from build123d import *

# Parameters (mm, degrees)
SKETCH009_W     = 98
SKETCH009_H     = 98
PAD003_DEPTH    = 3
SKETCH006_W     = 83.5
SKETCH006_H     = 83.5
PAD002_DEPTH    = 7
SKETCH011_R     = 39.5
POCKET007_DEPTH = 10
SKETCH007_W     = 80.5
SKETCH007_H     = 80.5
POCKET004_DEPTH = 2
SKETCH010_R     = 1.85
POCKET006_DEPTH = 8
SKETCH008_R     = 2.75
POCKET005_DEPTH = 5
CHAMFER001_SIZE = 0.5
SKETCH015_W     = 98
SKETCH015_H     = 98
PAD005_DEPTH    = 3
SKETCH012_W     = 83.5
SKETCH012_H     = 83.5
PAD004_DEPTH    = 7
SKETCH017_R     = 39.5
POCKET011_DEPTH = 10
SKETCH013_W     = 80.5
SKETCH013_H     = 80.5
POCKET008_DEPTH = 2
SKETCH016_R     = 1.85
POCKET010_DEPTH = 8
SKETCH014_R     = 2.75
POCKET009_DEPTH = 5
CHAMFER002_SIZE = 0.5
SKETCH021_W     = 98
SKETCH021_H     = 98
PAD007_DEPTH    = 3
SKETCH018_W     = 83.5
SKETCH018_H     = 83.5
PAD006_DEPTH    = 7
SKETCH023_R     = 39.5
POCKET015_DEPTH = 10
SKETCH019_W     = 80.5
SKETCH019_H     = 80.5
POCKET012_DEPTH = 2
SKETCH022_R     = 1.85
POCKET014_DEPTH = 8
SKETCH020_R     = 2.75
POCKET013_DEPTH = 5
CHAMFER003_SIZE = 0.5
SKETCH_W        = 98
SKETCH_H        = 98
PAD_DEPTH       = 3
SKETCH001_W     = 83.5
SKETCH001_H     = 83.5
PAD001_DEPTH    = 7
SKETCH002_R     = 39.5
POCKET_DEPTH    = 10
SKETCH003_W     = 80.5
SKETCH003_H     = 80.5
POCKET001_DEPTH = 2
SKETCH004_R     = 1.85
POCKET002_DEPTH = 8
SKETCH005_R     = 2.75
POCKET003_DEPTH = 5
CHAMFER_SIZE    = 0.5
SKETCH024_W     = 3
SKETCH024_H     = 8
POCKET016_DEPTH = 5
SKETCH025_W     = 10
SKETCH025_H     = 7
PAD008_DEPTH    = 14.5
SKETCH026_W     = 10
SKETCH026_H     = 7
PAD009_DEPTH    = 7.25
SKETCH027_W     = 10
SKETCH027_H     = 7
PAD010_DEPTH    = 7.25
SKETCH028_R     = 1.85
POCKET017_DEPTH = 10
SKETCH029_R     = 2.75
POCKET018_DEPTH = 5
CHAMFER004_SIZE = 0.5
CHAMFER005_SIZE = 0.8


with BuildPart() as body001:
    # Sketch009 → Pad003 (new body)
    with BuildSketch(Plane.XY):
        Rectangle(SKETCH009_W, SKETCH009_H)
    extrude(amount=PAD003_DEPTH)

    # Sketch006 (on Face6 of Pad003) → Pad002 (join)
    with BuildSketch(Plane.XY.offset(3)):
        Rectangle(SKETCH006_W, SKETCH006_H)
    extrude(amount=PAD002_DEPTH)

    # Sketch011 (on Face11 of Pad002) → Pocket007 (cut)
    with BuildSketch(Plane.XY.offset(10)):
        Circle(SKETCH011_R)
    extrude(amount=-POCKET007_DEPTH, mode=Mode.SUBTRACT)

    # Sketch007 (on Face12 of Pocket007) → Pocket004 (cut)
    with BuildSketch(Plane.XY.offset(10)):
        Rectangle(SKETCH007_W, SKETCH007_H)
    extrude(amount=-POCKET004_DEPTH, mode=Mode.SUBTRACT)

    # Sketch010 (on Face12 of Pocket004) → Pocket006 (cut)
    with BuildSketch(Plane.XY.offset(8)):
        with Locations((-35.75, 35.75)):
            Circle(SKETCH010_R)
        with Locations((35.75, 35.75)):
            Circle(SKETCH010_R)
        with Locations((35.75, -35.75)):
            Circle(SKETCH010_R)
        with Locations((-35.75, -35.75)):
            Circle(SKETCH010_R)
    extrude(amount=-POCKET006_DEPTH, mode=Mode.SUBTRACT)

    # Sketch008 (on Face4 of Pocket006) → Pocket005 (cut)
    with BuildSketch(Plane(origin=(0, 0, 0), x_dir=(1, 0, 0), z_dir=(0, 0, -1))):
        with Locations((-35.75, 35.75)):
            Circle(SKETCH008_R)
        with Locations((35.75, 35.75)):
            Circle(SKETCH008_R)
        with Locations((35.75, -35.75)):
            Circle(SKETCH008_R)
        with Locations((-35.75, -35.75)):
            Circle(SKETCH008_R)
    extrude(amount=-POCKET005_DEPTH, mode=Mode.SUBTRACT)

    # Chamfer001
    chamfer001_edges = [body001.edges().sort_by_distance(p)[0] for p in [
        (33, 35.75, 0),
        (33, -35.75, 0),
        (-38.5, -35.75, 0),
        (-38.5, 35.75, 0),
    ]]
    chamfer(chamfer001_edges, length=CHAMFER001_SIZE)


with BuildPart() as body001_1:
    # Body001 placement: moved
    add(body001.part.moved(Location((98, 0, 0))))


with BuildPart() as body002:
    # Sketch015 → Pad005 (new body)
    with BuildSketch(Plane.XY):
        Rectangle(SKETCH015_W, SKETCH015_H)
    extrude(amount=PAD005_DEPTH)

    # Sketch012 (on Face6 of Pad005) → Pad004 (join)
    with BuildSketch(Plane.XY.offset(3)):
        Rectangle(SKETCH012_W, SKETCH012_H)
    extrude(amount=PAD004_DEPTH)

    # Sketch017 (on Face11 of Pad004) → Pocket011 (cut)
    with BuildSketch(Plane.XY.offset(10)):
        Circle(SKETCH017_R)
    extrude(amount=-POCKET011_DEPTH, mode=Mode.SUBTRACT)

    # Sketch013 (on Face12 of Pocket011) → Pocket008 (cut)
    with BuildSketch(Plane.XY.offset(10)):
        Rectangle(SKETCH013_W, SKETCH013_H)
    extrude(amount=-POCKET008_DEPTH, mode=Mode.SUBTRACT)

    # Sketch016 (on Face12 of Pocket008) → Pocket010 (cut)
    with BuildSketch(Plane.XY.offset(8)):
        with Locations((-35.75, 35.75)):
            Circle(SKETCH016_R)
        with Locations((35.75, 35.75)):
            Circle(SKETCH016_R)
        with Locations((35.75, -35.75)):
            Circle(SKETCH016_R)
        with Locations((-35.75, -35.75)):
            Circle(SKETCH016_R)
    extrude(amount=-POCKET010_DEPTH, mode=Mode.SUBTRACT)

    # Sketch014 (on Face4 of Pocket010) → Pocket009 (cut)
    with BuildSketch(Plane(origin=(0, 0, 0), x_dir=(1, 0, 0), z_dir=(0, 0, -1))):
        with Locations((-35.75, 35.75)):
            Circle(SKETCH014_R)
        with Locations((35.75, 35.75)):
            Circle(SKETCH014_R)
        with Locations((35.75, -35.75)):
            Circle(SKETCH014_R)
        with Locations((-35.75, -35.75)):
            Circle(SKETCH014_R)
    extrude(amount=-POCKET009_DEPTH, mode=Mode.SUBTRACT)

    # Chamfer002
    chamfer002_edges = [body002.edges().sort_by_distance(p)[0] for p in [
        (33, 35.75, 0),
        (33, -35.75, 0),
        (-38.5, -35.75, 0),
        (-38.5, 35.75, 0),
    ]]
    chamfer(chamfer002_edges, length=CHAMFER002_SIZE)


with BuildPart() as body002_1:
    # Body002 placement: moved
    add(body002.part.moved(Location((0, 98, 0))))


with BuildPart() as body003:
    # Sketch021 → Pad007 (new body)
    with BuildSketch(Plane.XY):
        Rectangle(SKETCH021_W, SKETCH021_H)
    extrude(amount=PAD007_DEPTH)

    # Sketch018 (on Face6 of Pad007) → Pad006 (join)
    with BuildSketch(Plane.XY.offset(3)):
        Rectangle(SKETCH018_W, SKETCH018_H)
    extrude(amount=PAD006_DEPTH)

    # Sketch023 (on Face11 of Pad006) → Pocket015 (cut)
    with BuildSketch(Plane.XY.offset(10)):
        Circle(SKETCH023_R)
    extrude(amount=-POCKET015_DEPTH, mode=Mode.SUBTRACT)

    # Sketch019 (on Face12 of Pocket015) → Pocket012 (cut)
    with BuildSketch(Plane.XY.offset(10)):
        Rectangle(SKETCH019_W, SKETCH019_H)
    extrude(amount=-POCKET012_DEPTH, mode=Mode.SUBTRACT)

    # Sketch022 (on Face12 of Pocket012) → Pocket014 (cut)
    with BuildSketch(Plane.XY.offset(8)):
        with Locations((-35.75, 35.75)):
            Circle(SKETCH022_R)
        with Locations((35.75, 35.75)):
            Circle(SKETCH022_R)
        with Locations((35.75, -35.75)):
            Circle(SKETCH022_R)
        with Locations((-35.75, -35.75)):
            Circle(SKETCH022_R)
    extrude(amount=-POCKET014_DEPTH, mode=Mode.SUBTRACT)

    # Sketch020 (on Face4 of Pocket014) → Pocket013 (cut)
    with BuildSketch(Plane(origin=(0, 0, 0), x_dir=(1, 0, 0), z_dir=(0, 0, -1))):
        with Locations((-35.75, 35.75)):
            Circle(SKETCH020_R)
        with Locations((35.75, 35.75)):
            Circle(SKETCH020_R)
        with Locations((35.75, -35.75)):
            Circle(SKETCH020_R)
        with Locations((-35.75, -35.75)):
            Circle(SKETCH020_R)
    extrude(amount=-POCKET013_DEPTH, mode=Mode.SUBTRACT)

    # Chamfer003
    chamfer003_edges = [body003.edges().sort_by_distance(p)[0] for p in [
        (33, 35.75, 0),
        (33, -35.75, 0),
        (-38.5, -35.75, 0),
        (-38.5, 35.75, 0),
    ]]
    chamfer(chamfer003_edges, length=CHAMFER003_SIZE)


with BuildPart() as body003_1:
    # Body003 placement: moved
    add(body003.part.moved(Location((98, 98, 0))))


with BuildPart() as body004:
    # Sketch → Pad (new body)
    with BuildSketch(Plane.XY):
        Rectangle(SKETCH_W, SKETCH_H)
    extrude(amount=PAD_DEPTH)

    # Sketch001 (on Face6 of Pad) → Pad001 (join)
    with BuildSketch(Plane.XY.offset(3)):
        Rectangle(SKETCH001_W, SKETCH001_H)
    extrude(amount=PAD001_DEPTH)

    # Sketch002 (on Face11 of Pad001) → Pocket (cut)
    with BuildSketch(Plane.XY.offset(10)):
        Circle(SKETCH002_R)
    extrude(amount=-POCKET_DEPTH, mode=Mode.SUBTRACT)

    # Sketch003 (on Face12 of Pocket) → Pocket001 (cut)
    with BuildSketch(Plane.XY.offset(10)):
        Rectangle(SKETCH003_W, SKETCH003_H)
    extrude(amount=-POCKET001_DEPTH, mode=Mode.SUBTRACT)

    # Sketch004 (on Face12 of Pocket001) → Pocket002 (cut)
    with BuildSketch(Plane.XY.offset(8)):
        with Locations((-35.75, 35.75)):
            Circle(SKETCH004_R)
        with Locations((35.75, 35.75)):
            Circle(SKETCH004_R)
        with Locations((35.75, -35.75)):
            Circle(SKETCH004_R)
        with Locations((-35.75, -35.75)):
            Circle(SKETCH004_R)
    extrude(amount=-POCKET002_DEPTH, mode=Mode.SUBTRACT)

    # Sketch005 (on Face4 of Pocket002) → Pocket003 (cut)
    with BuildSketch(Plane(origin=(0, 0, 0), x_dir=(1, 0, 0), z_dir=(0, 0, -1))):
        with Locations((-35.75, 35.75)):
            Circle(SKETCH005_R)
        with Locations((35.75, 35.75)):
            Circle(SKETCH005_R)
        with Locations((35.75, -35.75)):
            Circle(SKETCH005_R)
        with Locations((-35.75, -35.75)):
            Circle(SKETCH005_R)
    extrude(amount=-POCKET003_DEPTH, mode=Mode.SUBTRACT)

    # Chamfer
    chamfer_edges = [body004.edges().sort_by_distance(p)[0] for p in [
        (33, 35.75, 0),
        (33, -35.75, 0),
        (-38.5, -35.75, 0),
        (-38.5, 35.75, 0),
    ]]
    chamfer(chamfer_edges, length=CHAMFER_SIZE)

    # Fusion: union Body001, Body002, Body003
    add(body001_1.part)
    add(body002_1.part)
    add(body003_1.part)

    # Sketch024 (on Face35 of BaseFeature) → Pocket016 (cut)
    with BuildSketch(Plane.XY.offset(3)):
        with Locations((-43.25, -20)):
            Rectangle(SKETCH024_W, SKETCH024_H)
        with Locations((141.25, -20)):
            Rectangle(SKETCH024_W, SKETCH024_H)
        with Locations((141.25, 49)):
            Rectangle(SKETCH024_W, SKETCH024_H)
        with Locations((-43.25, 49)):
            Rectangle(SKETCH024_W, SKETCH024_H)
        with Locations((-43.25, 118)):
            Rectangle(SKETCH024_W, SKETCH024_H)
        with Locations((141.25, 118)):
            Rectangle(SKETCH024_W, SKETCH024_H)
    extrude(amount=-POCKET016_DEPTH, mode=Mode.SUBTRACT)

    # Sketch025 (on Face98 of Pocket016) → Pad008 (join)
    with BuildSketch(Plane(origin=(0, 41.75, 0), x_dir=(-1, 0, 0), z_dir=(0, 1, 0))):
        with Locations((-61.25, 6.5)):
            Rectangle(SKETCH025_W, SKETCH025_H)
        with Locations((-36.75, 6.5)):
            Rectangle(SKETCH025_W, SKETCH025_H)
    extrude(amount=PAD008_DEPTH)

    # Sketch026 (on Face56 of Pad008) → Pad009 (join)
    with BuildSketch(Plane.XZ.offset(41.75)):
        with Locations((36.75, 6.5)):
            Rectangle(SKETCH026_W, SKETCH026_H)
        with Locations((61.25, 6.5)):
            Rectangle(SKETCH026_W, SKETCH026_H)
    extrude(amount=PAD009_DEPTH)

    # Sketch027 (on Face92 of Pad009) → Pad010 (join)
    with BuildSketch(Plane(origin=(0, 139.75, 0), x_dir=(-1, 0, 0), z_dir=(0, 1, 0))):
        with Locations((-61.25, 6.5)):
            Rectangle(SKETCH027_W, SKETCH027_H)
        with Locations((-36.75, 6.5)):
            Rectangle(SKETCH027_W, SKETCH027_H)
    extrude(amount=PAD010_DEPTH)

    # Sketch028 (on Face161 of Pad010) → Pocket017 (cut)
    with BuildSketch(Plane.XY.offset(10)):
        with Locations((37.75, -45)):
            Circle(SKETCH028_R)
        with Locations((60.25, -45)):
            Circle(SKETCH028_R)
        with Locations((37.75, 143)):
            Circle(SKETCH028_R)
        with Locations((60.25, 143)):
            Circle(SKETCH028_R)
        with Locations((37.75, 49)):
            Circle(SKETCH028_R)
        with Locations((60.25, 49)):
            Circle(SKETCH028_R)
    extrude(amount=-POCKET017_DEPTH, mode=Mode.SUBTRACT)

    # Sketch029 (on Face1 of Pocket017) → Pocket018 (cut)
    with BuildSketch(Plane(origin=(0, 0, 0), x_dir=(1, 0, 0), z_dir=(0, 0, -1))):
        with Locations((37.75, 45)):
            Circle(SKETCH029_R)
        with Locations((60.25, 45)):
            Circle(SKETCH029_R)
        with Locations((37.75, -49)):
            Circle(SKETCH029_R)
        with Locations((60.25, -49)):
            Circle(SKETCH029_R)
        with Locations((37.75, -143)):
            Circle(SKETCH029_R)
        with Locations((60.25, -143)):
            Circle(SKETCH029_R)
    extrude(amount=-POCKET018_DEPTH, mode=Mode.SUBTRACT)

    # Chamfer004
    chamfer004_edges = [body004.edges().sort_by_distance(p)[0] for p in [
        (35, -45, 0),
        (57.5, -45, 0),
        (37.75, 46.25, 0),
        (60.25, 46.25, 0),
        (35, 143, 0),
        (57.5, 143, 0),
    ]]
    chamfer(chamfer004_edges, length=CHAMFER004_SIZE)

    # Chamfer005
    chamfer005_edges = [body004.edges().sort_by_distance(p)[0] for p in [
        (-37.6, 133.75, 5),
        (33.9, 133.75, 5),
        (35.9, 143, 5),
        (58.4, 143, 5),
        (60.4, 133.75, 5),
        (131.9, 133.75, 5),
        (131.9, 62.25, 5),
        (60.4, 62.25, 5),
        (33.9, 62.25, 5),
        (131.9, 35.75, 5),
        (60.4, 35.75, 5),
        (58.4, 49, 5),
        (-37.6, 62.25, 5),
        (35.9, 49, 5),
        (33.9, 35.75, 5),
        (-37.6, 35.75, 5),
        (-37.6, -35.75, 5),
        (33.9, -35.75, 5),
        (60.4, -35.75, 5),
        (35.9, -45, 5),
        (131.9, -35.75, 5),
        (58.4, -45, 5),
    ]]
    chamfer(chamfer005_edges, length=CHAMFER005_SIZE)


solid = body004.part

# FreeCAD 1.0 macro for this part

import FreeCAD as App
import Part
import Sketcher

V = App.Vector


def edges_at(feature, points):
    """Names of the edges that pass closest to the given points."""
    edges = feature.Shape.Edges
    near = lambda p: min(range(len(edges)), key=lambda i: edges[i].distToShape(Part.Vertex(*p))[0])
    return sorted({f"Edge{near(p) + 1}" for p in points})


def add_polygon(sketch, points):
    """Adds a closed chain of lines whose ends are joined by coincident constraints."""
    first, n = sketch.GeometryCount, len(points)
    for a, b in zip(points, points[1:] + points[:1]):
        sketch.addGeometry(Part.LineSegment(App.Vector(*a, 0), App.Vector(*b, 0)), False)
    for i in range(n):
        sketch.addConstraint(Sketcher.Constraint("Coincident", first + i, 2, first + (i + 1) % n, 1))

doc = App.newDocument("Part")
body = doc.addObject("PartDesign::Body", "Body")

# Sketch on XY plane
sketch1 = body.newObject("Sketcher::SketchObject", "Sketch")
sketch1.AttachmentSupport = (doc.getObject("XY_Plane"), [""])
sketch1.MapMode = "FlatFace"
add_polygon(sketch1, [(-49, 49), (-49, -49), (49, -49), (49, 49)])  # lines 0-3
sketch1.addConstraint(Sketcher.Constraint("Vertical", 0))
sketch1.addConstraint(Sketcher.Constraint("Horizontal", 1))
sketch1.addConstraint(Sketcher.Constraint("Vertical", 2))
sketch1.addConstraint(Sketcher.Constraint("Horizontal", 3))
sketch1.addConstraint(Sketcher.Constraint("Symmetric", 0, 2, 2, 2, -1, 1))
sketch1.addConstraint(Sketcher.Constraint("Equal", 3, 0))
sketch1.addConstraint(Sketcher.Constraint("DistanceX", 1, 1, 1, 2, 98.0))
pad1 = body.newObject("PartDesign::Pad", "Pad")
pad1.Profile = sketch1
pad1.Length = 3

# Sketch on XY plane
sketch2 = body.newObject("Sketcher::SketchObject", "Sketch001")
sketch2.AttachmentSupport = (doc.getObject("XY_Plane"), [""])
sketch2.MapMode = "FlatFace"
sketch2.AttachmentOffset = App.Placement(V(0, 0, 3), App.Rotation())
add_polygon(sketch2, [(-42, 42), (-42, -42), (42, -42), (42, 42)])  # lines 0-3
sketch2.addConstraint(Sketcher.Constraint("Vertical", 0))
sketch2.addConstraint(Sketcher.Constraint("Horizontal", 1))
sketch2.addConstraint(Sketcher.Constraint("Vertical", 2))
sketch2.addConstraint(Sketcher.Constraint("Horizontal", 3))
sketch2.addConstraint(Sketcher.Constraint("Symmetric", 0, 2, 2, 2, -1, 1))
sketch2.addConstraint(Sketcher.Constraint("Equal", 3, 0))
sketch2.addConstraint(Sketcher.Constraint("DistanceX", 1, 1, 1, 2, 83.5))
pad2 = body.newObject("PartDesign::Pad", "Pad001")
pad2.Profile = sketch2
pad2.Length = 7

# Sketch on XY plane
sketch3 = body.newObject("Sketcher::SketchObject", "Sketch002")
sketch3.AttachmentSupport = (doc.getObject("XY_Plane"), [""])
sketch3.MapMode = "FlatFace"
sketch3.AttachmentOffset = App.Placement(V(0, 0, 10), App.Rotation())
sketch3.addGeometry(Part.Circle(V(0, 0, 0), V(0, 0, 1), 40), False)
sketch3.addConstraint(Sketcher.Constraint("Coincident", 0, 3, -1, 1))
sketch3.addConstraint(Sketcher.Constraint("Diameter", 0, 79.0))
pocket1 = body.newObject("PartDesign::Pocket", "Pocket")
pocket1.Profile = sketch3
pocket1.Length = 10

# Sketch on XY plane
sketch4 = body.newObject("Sketcher::SketchObject", "Sketch003")
sketch4.AttachmentSupport = (doc.getObject("XY_Plane"), [""])
sketch4.MapMode = "FlatFace"
sketch4.AttachmentOffset = App.Placement(V(0, 0, 10), App.Rotation())
add_polygon(sketch4, [(-40, 40), (-40, -40), (40, -40), (40, 40)])  # lines 0-3
sketch4.addConstraint(Sketcher.Constraint("Vertical", 0))
sketch4.addConstraint(Sketcher.Constraint("Horizontal", 1))
sketch4.addConstraint(Sketcher.Constraint("Vertical", 2))
sketch4.addConstraint(Sketcher.Constraint("Horizontal", 3))
sketch4.addConstraint(Sketcher.Constraint("Symmetric", 0, 2, 2, 2, -1, 1))
sketch4.addConstraint(Sketcher.Constraint("Equal", 3, 0))
sketch4.addConstraint(Sketcher.Constraint("DistanceX", 1, 1, 1, 2, 80.5))
pocket2 = body.newObject("PartDesign::Pocket", "Pocket001")
pocket2.Profile = sketch4
pocket2.Length = 2

# Sketch on XY plane
sketch5 = body.newObject("Sketcher::SketchObject", "Sketch004")
sketch5.AttachmentSupport = (doc.getObject("XY_Plane"), [""])
sketch5.MapMode = "FlatFace"
sketch5.AttachmentOffset = App.Placement(V(0, 0, 8), App.Rotation())
sketch5.addGeometry(Part.Circle(V(-35.8, 35.8, 0), V(0, 0, 1), 1.9), False)
sketch5.addGeometry(Part.Circle(V(35.8, 35.8, 0), V(0, 0, 1), 1.9), False)
sketch5.addGeometry(Part.Circle(V(35.8, -35.8, 0), V(0, 0, 1), 1.9), False)
sketch5.addGeometry(Part.Circle(V(-35.8, -35.8, 0), V(0, 0, 1), 1.9), False)
sketch5.addConstraint(Sketcher.Constraint("Equal", 0, 1))
sketch5.addConstraint(Sketcher.Constraint("Equal", 1, 2))
sketch5.addConstraint(Sketcher.Constraint("Equal", 2, 3))
sketch5.addConstraint(Sketcher.Constraint("Symmetric", 0, 3, 2, 3, -1, 1))
sketch5.addConstraint(Sketcher.Constraint("Symmetric", 1, 3, 3, 3, -1, 1))
sketch5.addConstraint(Sketcher.Constraint("Symmetric", 0, 3, 1, 3, -2))
sketch5.addConstraint(Sketcher.Constraint("Diameter", 0, 3.7))
sketch5.addConstraint(Sketcher.Constraint("DistanceX", 0, 3, 1, 3, 71.5))
sketch5.addConstraint(Sketcher.Constraint("DistanceY", 2, 3, 1, 3, 71.5))
pocket3 = body.newObject("PartDesign::Pocket", "Pocket002")
pocket3.Profile = sketch5
pocket3.Length = 8

# Sketch on XY plane
sketch6 = body.newObject("Sketcher::SketchObject", "Sketch005")
sketch6.AttachmentSupport = (doc.getObject("XY_Plane"), [""])
sketch6.MapMode = "FlatFace"
sketch6.addGeometry(Part.Circle(V(-35.8, -35.8, 0), V(0, 0, 1), 2.8), False)
sketch6.addGeometry(Part.Circle(V(35.8, -35.8, 0), V(0, 0, 1), 2.8), False)
sketch6.addGeometry(Part.Circle(V(35.8, 35.8, 0), V(0, 0, 1), 2.8), False)
sketch6.addGeometry(Part.Circle(V(-35.8, 35.8, 0), V(0, 0, 1), 2.8), False)
sketch6.addConstraint(Sketcher.Constraint("Equal", 0, 1))
sketch6.addConstraint(Sketcher.Constraint("Equal", 1, 2))
sketch6.addConstraint(Sketcher.Constraint("Equal", 2, 3))
sketch6.addConstraint(Sketcher.Constraint("Symmetric", 0, 3, 2, 3, -1, 1))
sketch6.addConstraint(Sketcher.Constraint("Symmetric", 1, 3, 3, 3, -1, 1))
sketch6.addConstraint(Sketcher.Constraint("Symmetric", 0, 3, 1, 3, -2))
sketch6.addConstraint(Sketcher.Constraint("Diameter", 0, 5.5))
sketch6.addConstraint(Sketcher.Constraint("DistanceX", 0, 3, 1, 3, 71.5))
sketch6.addConstraint(Sketcher.Constraint("DistanceY", 1, 3, 2, 3, 71.5))
pocket4 = body.newObject("PartDesign::Pocket", "Pocket003")
pocket4.Profile = sketch6
pocket4.Length = 5
pocket4.Reversed = True
doc.recompute()

chamfer = body.newObject("PartDesign::Chamfer", "Chamfer")
chamfer.Base = (pocket4, edges_at(pocket4, [
    (33, 35.75, 0),
    (33, -35.75, 0),
    (-38.5, -35.75, 0),
    (-38.5, 35.75, 0),
]))
chamfer.Size = 0.5
body2 = doc.addObject("PartDesign::Body", "Body001")
doc.recompute()

body.Placement = App.Placement(V(98, 0, 0), App.Rotation(V(0, 0, 1), 0))
boolean = body2.newObject("PartDesign::Boolean", "Boolean")
boolean.Type = "Fuse"
boolean.addObjects([body])
body3 = doc.addObject("PartDesign::Body", "Body002")

# Sketch on XY plane
sketch7 = body3.newObject("Sketcher::SketchObject", "Sketch006")
sketch7.AttachmentSupport = (doc.getObject("XY_Plane002"), [""])
sketch7.MapMode = "FlatFace"
add_polygon(sketch7, [(-49, 49), (-49, -49), (49, -49), (49, 49)])  # lines 0-3
sketch7.addConstraint(Sketcher.Constraint("Vertical", 0))
sketch7.addConstraint(Sketcher.Constraint("Horizontal", 1))
sketch7.addConstraint(Sketcher.Constraint("Vertical", 2))
sketch7.addConstraint(Sketcher.Constraint("Horizontal", 3))
sketch7.addConstraint(Sketcher.Constraint("Symmetric", 0, 2, 2, 2, -1, 1))
sketch7.addConstraint(Sketcher.Constraint("Equal", 3, 0))
sketch7.addConstraint(Sketcher.Constraint("DistanceX", 1, 1, 1, 2, 98.0))
pad3 = body3.newObject("PartDesign::Pad", "Pad002")
pad3.Profile = sketch7
pad3.Length = 3

# Sketch on XY plane
sketch8 = body3.newObject("Sketcher::SketchObject", "Sketch007")
sketch8.AttachmentSupport = (doc.getObject("XY_Plane002"), [""])
sketch8.MapMode = "FlatFace"
sketch8.AttachmentOffset = App.Placement(V(0, 0, 3), App.Rotation())
add_polygon(sketch8, [(-42, 42), (-42, -42), (42, -42), (42, 42)])  # lines 0-3
sketch8.addConstraint(Sketcher.Constraint("Vertical", 0))
sketch8.addConstraint(Sketcher.Constraint("Horizontal", 1))
sketch8.addConstraint(Sketcher.Constraint("Vertical", 2))
sketch8.addConstraint(Sketcher.Constraint("Horizontal", 3))
sketch8.addConstraint(Sketcher.Constraint("Symmetric", 0, 2, 2, 2, -1, 1))
sketch8.addConstraint(Sketcher.Constraint("Equal", 3, 0))
sketch8.addConstraint(Sketcher.Constraint("DistanceX", 1, 1, 1, 2, 83.5))
pad4 = body3.newObject("PartDesign::Pad", "Pad003")
pad4.Profile = sketch8
pad4.Length = 7

# Sketch on XY plane
sketch9 = body3.newObject("Sketcher::SketchObject", "Sketch008")
sketch9.AttachmentSupport = (doc.getObject("XY_Plane002"), [""])
sketch9.MapMode = "FlatFace"
sketch9.AttachmentOffset = App.Placement(V(0, 0, 10), App.Rotation())
sketch9.addGeometry(Part.Circle(V(0, 0, 0), V(0, 0, 1), 40), False)
sketch9.addConstraint(Sketcher.Constraint("Coincident", 0, 3, -1, 1))
sketch9.addConstraint(Sketcher.Constraint("Diameter", 0, 79.0))
pocket5 = body3.newObject("PartDesign::Pocket", "Pocket004")
pocket5.Profile = sketch9
pocket5.Length = 10

# Sketch on XY plane
sketch10 = body3.newObject("Sketcher::SketchObject", "Sketch009")
sketch10.AttachmentSupport = (doc.getObject("XY_Plane002"), [""])
sketch10.MapMode = "FlatFace"
sketch10.AttachmentOffset = App.Placement(V(0, 0, 10), App.Rotation())
add_polygon(sketch10, [(-40, 40), (-40, -40), (40, -40), (40, 40)])  # lines 0-3
sketch10.addConstraint(Sketcher.Constraint("Vertical", 0))
sketch10.addConstraint(Sketcher.Constraint("Horizontal", 1))
sketch10.addConstraint(Sketcher.Constraint("Vertical", 2))
sketch10.addConstraint(Sketcher.Constraint("Horizontal", 3))
sketch10.addConstraint(Sketcher.Constraint("Symmetric", 0, 2, 2, 2, -1, 1))
sketch10.addConstraint(Sketcher.Constraint("Equal", 3, 0))
sketch10.addConstraint(Sketcher.Constraint("DistanceX", 1, 1, 1, 2, 80.5))
pocket6 = body3.newObject("PartDesign::Pocket", "Pocket005")
pocket6.Profile = sketch10
pocket6.Length = 2

# Sketch on XY plane
sketch11 = body3.newObject("Sketcher::SketchObject", "Sketch010")
sketch11.AttachmentSupport = (doc.getObject("XY_Plane002"), [""])
sketch11.MapMode = "FlatFace"
sketch11.AttachmentOffset = App.Placement(V(0, 0, 8), App.Rotation())
sketch11.addGeometry(Part.Circle(V(-35.8, 35.8, 0), V(0, 0, 1), 1.9), False)
sketch11.addGeometry(Part.Circle(V(35.8, 35.8, 0), V(0, 0, 1), 1.9), False)
sketch11.addGeometry(Part.Circle(V(35.8, -35.8, 0), V(0, 0, 1), 1.9), False)
sketch11.addGeometry(Part.Circle(V(-35.8, -35.8, 0), V(0, 0, 1), 1.9), False)
sketch11.addConstraint(Sketcher.Constraint("Equal", 0, 1))
sketch11.addConstraint(Sketcher.Constraint("Equal", 1, 2))
sketch11.addConstraint(Sketcher.Constraint("Equal", 2, 3))
sketch11.addConstraint(Sketcher.Constraint("Symmetric", 0, 3, 2, 3, -1, 1))
sketch11.addConstraint(Sketcher.Constraint("Symmetric", 1, 3, 3, 3, -1, 1))
sketch11.addConstraint(Sketcher.Constraint("Symmetric", 0, 3, 1, 3, -2))
sketch11.addConstraint(Sketcher.Constraint("Diameter", 0, 3.7))
sketch11.addConstraint(Sketcher.Constraint("DistanceX", 0, 3, 1, 3, 71.5))
sketch11.addConstraint(Sketcher.Constraint("DistanceY", 2, 3, 1, 3, 71.5))
pocket7 = body3.newObject("PartDesign::Pocket", "Pocket006")
pocket7.Profile = sketch11
pocket7.Length = 8

# Sketch on XY plane
sketch12 = body3.newObject("Sketcher::SketchObject", "Sketch011")
sketch12.AttachmentSupport = (doc.getObject("XY_Plane002"), [""])
sketch12.MapMode = "FlatFace"
sketch12.addGeometry(Part.Circle(V(-35.8, -35.8, 0), V(0, 0, 1), 2.8), False)
sketch12.addGeometry(Part.Circle(V(35.8, -35.8, 0), V(0, 0, 1), 2.8), False)
sketch12.addGeometry(Part.Circle(V(35.8, 35.8, 0), V(0, 0, 1), 2.8), False)
sketch12.addGeometry(Part.Circle(V(-35.8, 35.8, 0), V(0, 0, 1), 2.8), False)
sketch12.addConstraint(Sketcher.Constraint("Equal", 0, 1))
sketch12.addConstraint(Sketcher.Constraint("Equal", 1, 2))
sketch12.addConstraint(Sketcher.Constraint("Equal", 2, 3))
sketch12.addConstraint(Sketcher.Constraint("Symmetric", 0, 3, 2, 3, -1, 1))
sketch12.addConstraint(Sketcher.Constraint("Symmetric", 1, 3, 3, 3, -1, 1))
sketch12.addConstraint(Sketcher.Constraint("Symmetric", 0, 3, 1, 3, -2))
sketch12.addConstraint(Sketcher.Constraint("Diameter", 0, 5.5))
sketch12.addConstraint(Sketcher.Constraint("DistanceX", 0, 3, 1, 3, 71.5))
sketch12.addConstraint(Sketcher.Constraint("DistanceY", 1, 3, 2, 3, 71.5))
pocket8 = body3.newObject("PartDesign::Pocket", "Pocket007")
pocket8.Profile = sketch12
pocket8.Length = 5
pocket8.Reversed = True
doc.recompute()

chamfer2 = body3.newObject("PartDesign::Chamfer", "Chamfer001")
chamfer2.Base = (pocket8, edges_at(pocket8, [
    (33, 35.75, 0),
    (33, -35.75, 0),
    (-38.5, -35.75, 0),
    (-38.5, 35.75, 0),
]))
chamfer2.Size = 0.5
body4 = doc.addObject("PartDesign::Body", "Body003")
doc.recompute()

body3.Placement = App.Placement(V(0, 98, 0), App.Rotation(V(0, 0, 1), 0))
boolean2 = body4.newObject("PartDesign::Boolean", "Boolean001")
boolean2.Type = "Fuse"
boolean2.addObjects([body3])
body5 = doc.addObject("PartDesign::Body", "Body004")

# Sketch on XY plane
sketch13 = body5.newObject("Sketcher::SketchObject", "Sketch012")
sketch13.AttachmentSupport = (doc.getObject("XY_Plane004"), [""])
sketch13.MapMode = "FlatFace"
add_polygon(sketch13, [(-49, 49), (-49, -49), (49, -49), (49, 49)])  # lines 0-3
sketch13.addConstraint(Sketcher.Constraint("Vertical", 0))
sketch13.addConstraint(Sketcher.Constraint("Horizontal", 1))
sketch13.addConstraint(Sketcher.Constraint("Vertical", 2))
sketch13.addConstraint(Sketcher.Constraint("Horizontal", 3))
sketch13.addConstraint(Sketcher.Constraint("Symmetric", 0, 2, 2, 2, -1, 1))
sketch13.addConstraint(Sketcher.Constraint("Equal", 3, 0))
sketch13.addConstraint(Sketcher.Constraint("DistanceX", 1, 1, 1, 2, 98.0))
pad5 = body5.newObject("PartDesign::Pad", "Pad004")
pad5.Profile = sketch13
pad5.Length = 3

# Sketch on XY plane
sketch14 = body5.newObject("Sketcher::SketchObject", "Sketch013")
sketch14.AttachmentSupport = (doc.getObject("XY_Plane004"), [""])
sketch14.MapMode = "FlatFace"
sketch14.AttachmentOffset = App.Placement(V(0, 0, 3), App.Rotation())
add_polygon(sketch14, [(-42, 42), (-42, -42), (42, -42), (42, 42)])  # lines 0-3
sketch14.addConstraint(Sketcher.Constraint("Vertical", 0))
sketch14.addConstraint(Sketcher.Constraint("Horizontal", 1))
sketch14.addConstraint(Sketcher.Constraint("Vertical", 2))
sketch14.addConstraint(Sketcher.Constraint("Horizontal", 3))
sketch14.addConstraint(Sketcher.Constraint("Symmetric", 0, 2, 2, 2, -1, 1))
sketch14.addConstraint(Sketcher.Constraint("Equal", 3, 0))
sketch14.addConstraint(Sketcher.Constraint("DistanceX", 1, 1, 1, 2, 83.5))
pad6 = body5.newObject("PartDesign::Pad", "Pad005")
pad6.Profile = sketch14
pad6.Length = 7

# Sketch on XY plane
sketch15 = body5.newObject("Sketcher::SketchObject", "Sketch014")
sketch15.AttachmentSupport = (doc.getObject("XY_Plane004"), [""])
sketch15.MapMode = "FlatFace"
sketch15.AttachmentOffset = App.Placement(V(0, 0, 10), App.Rotation())
sketch15.addGeometry(Part.Circle(V(0, 0, 0), V(0, 0, 1), 40), False)
sketch15.addConstraint(Sketcher.Constraint("Coincident", 0, 3, -1, 1))
sketch15.addConstraint(Sketcher.Constraint("Diameter", 0, 79.0))
pocket9 = body5.newObject("PartDesign::Pocket", "Pocket008")
pocket9.Profile = sketch15
pocket9.Length = 10

# Sketch on XY plane
sketch16 = body5.newObject("Sketcher::SketchObject", "Sketch015")
sketch16.AttachmentSupport = (doc.getObject("XY_Plane004"), [""])
sketch16.MapMode = "FlatFace"
sketch16.AttachmentOffset = App.Placement(V(0, 0, 10), App.Rotation())
add_polygon(sketch16, [(-40, 40), (-40, -40), (40, -40), (40, 40)])  # lines 0-3
sketch16.addConstraint(Sketcher.Constraint("Vertical", 0))
sketch16.addConstraint(Sketcher.Constraint("Horizontal", 1))
sketch16.addConstraint(Sketcher.Constraint("Vertical", 2))
sketch16.addConstraint(Sketcher.Constraint("Horizontal", 3))
sketch16.addConstraint(Sketcher.Constraint("Symmetric", 0, 2, 2, 2, -1, 1))
sketch16.addConstraint(Sketcher.Constraint("Equal", 3, 0))
sketch16.addConstraint(Sketcher.Constraint("DistanceX", 1, 1, 1, 2, 80.5))
pocket10 = body5.newObject("PartDesign::Pocket", "Pocket009")
pocket10.Profile = sketch16
pocket10.Length = 2

# Sketch on XY plane
sketch17 = body5.newObject("Sketcher::SketchObject", "Sketch016")
sketch17.AttachmentSupport = (doc.getObject("XY_Plane004"), [""])
sketch17.MapMode = "FlatFace"
sketch17.AttachmentOffset = App.Placement(V(0, 0, 8), App.Rotation())
sketch17.addGeometry(Part.Circle(V(-35.8, 35.8, 0), V(0, 0, 1), 1.9), False)
sketch17.addGeometry(Part.Circle(V(35.8, 35.8, 0), V(0, 0, 1), 1.9), False)
sketch17.addGeometry(Part.Circle(V(35.8, -35.8, 0), V(0, 0, 1), 1.9), False)
sketch17.addGeometry(Part.Circle(V(-35.8, -35.8, 0), V(0, 0, 1), 1.9), False)
sketch17.addConstraint(Sketcher.Constraint("Equal", 0, 1))
sketch17.addConstraint(Sketcher.Constraint("Equal", 1, 2))
sketch17.addConstraint(Sketcher.Constraint("Equal", 2, 3))
sketch17.addConstraint(Sketcher.Constraint("Symmetric", 0, 3, 2, 3, -1, 1))
sketch17.addConstraint(Sketcher.Constraint("Symmetric", 1, 3, 3, 3, -1, 1))
sketch17.addConstraint(Sketcher.Constraint("Symmetric", 0, 3, 1, 3, -2))
sketch17.addConstraint(Sketcher.Constraint("Diameter", 0, 3.7))
sketch17.addConstraint(Sketcher.Constraint("DistanceX", 0, 3, 1, 3, 71.5))
sketch17.addConstraint(Sketcher.Constraint("DistanceY", 2, 3, 1, 3, 71.5))
pocket11 = body5.newObject("PartDesign::Pocket", "Pocket010")
pocket11.Profile = sketch17
pocket11.Length = 8

# Sketch on XY plane
sketch18 = body5.newObject("Sketcher::SketchObject", "Sketch017")
sketch18.AttachmentSupport = (doc.getObject("XY_Plane004"), [""])
sketch18.MapMode = "FlatFace"
sketch18.addGeometry(Part.Circle(V(-35.8, -35.8, 0), V(0, 0, 1), 2.8), False)
sketch18.addGeometry(Part.Circle(V(35.8, -35.8, 0), V(0, 0, 1), 2.8), False)
sketch18.addGeometry(Part.Circle(V(35.8, 35.8, 0), V(0, 0, 1), 2.8), False)
sketch18.addGeometry(Part.Circle(V(-35.8, 35.8, 0), V(0, 0, 1), 2.8), False)
sketch18.addConstraint(Sketcher.Constraint("Equal", 0, 1))
sketch18.addConstraint(Sketcher.Constraint("Equal", 1, 2))
sketch18.addConstraint(Sketcher.Constraint("Equal", 2, 3))
sketch18.addConstraint(Sketcher.Constraint("Symmetric", 0, 3, 2, 3, -1, 1))
sketch18.addConstraint(Sketcher.Constraint("Symmetric", 1, 3, 3, 3, -1, 1))
sketch18.addConstraint(Sketcher.Constraint("Symmetric", 0, 3, 1, 3, -2))
sketch18.addConstraint(Sketcher.Constraint("Diameter", 0, 5.5))
sketch18.addConstraint(Sketcher.Constraint("DistanceX", 0, 3, 1, 3, 71.5))
sketch18.addConstraint(Sketcher.Constraint("DistanceY", 1, 3, 2, 3, 71.5))
pocket12 = body5.newObject("PartDesign::Pocket", "Pocket011")
pocket12.Profile = sketch18
pocket12.Length = 5
pocket12.Reversed = True
doc.recompute()

chamfer3 = body5.newObject("PartDesign::Chamfer", "Chamfer002")
chamfer3.Base = (pocket12, edges_at(pocket12, [
    (33, 35.75, 0),
    (33, -35.75, 0),
    (-38.5, -35.75, 0),
    (-38.5, 35.75, 0),
]))
chamfer3.Size = 0.5
body6 = doc.addObject("PartDesign::Body", "Body005")
doc.recompute()

body5.Placement = App.Placement(V(98, 98, 0), App.Rotation(V(0, 0, 1), 0))
boolean3 = body6.newObject("PartDesign::Boolean", "Boolean002")
boolean3.Type = "Fuse"
boolean3.addObjects([body5])
body7 = doc.addObject("PartDesign::Body", "Body006")

# Sketch on XY plane
sketch19 = body7.newObject("Sketcher::SketchObject", "Sketch018")
sketch19.AttachmentSupport = (doc.getObject("XY_Plane006"), [""])
sketch19.MapMode = "FlatFace"
add_polygon(sketch19, [(-49, 49), (-49, -49), (49, -49), (49, 49)])  # lines 0-3
sketch19.addConstraint(Sketcher.Constraint("Vertical", 0))
sketch19.addConstraint(Sketcher.Constraint("Horizontal", 1))
sketch19.addConstraint(Sketcher.Constraint("Vertical", 2))
sketch19.addConstraint(Sketcher.Constraint("Horizontal", 3))
sketch19.addConstraint(Sketcher.Constraint("Symmetric", 0, 2, 2, 2, -1, 1))
sketch19.addConstraint(Sketcher.Constraint("Equal", 3, 0))
sketch19.addConstraint(Sketcher.Constraint("DistanceX", 1, 1, 1, 2, 98.0))
pad7 = body7.newObject("PartDesign::Pad", "Pad006")
pad7.Profile = sketch19
pad7.Length = 3

# Sketch on XY plane
sketch20 = body7.newObject("Sketcher::SketchObject", "Sketch019")
sketch20.AttachmentSupport = (doc.getObject("XY_Plane006"), [""])
sketch20.MapMode = "FlatFace"
sketch20.AttachmentOffset = App.Placement(V(0, 0, 3), App.Rotation())
add_polygon(sketch20, [(-42, 42), (-42, -42), (42, -42), (42, 42)])  # lines 0-3
sketch20.addConstraint(Sketcher.Constraint("Vertical", 0))
sketch20.addConstraint(Sketcher.Constraint("Horizontal", 1))
sketch20.addConstraint(Sketcher.Constraint("Vertical", 2))
sketch20.addConstraint(Sketcher.Constraint("Horizontal", 3))
sketch20.addConstraint(Sketcher.Constraint("Symmetric", 0, 2, 2, 2, -1, 1))
sketch20.addConstraint(Sketcher.Constraint("Equal", 3, 0))
sketch20.addConstraint(Sketcher.Constraint("DistanceX", 1, 1, 1, 2, 83.5))
pad8 = body7.newObject("PartDesign::Pad", "Pad007")
pad8.Profile = sketch20
pad8.Length = 7

# Sketch on XY plane
sketch21 = body7.newObject("Sketcher::SketchObject", "Sketch020")
sketch21.AttachmentSupport = (doc.getObject("XY_Plane006"), [""])
sketch21.MapMode = "FlatFace"
sketch21.AttachmentOffset = App.Placement(V(0, 0, 10), App.Rotation())
sketch21.addGeometry(Part.Circle(V(0, 0, 0), V(0, 0, 1), 40), False)
sketch21.addConstraint(Sketcher.Constraint("Coincident", 0, 3, -1, 1))
sketch21.addConstraint(Sketcher.Constraint("Diameter", 0, 79.0))
pocket13 = body7.newObject("PartDesign::Pocket", "Pocket012")
pocket13.Profile = sketch21
pocket13.Length = 10

# Sketch on XY plane
sketch22 = body7.newObject("Sketcher::SketchObject", "Sketch021")
sketch22.AttachmentSupport = (doc.getObject("XY_Plane006"), [""])
sketch22.MapMode = "FlatFace"
sketch22.AttachmentOffset = App.Placement(V(0, 0, 10), App.Rotation())
add_polygon(sketch22, [(-40, 40), (-40, -40), (40, -40), (40, 40)])  # lines 0-3
sketch22.addConstraint(Sketcher.Constraint("Vertical", 0))
sketch22.addConstraint(Sketcher.Constraint("Horizontal", 1))
sketch22.addConstraint(Sketcher.Constraint("Vertical", 2))
sketch22.addConstraint(Sketcher.Constraint("Horizontal", 3))
sketch22.addConstraint(Sketcher.Constraint("Symmetric", 0, 2, 2, 2, -1, 1))
sketch22.addConstraint(Sketcher.Constraint("Equal", 3, 0))
sketch22.addConstraint(Sketcher.Constraint("DistanceX", 1, 1, 1, 2, 80.5))
pocket14 = body7.newObject("PartDesign::Pocket", "Pocket013")
pocket14.Profile = sketch22
pocket14.Length = 2

# Sketch on XY plane
sketch23 = body7.newObject("Sketcher::SketchObject", "Sketch022")
sketch23.AttachmentSupport = (doc.getObject("XY_Plane006"), [""])
sketch23.MapMode = "FlatFace"
sketch23.AttachmentOffset = App.Placement(V(0, 0, 8), App.Rotation())
sketch23.addGeometry(Part.Circle(V(-35.8, 35.8, 0), V(0, 0, 1), 1.9), False)
sketch23.addGeometry(Part.Circle(V(35.8, 35.8, 0), V(0, 0, 1), 1.9), False)
sketch23.addGeometry(Part.Circle(V(35.8, -35.8, 0), V(0, 0, 1), 1.9), False)
sketch23.addGeometry(Part.Circle(V(-35.8, -35.8, 0), V(0, 0, 1), 1.9), False)
sketch23.addConstraint(Sketcher.Constraint("Equal", 0, 1))
sketch23.addConstraint(Sketcher.Constraint("Equal", 1, 2))
sketch23.addConstraint(Sketcher.Constraint("Equal", 2, 3))
sketch23.addConstraint(Sketcher.Constraint("Symmetric", 0, 3, 2, 3, -1, 1))
sketch23.addConstraint(Sketcher.Constraint("Symmetric", 1, 3, 3, 3, -1, 1))
sketch23.addConstraint(Sketcher.Constraint("Symmetric", 0, 3, 1, 3, -2))
sketch23.addConstraint(Sketcher.Constraint("Diameter", 0, 3.7))
sketch23.addConstraint(Sketcher.Constraint("DistanceX", 0, 3, 1, 3, 71.5))
sketch23.addConstraint(Sketcher.Constraint("DistanceY", 2, 3, 1, 3, 71.5))
pocket15 = body7.newObject("PartDesign::Pocket", "Pocket014")
pocket15.Profile = sketch23
pocket15.Length = 8

# Sketch on XY plane
sketch24 = body7.newObject("Sketcher::SketchObject", "Sketch023")
sketch24.AttachmentSupport = (doc.getObject("XY_Plane006"), [""])
sketch24.MapMode = "FlatFace"
sketch24.addGeometry(Part.Circle(V(-35.8, -35.8, 0), V(0, 0, 1), 2.8), False)
sketch24.addGeometry(Part.Circle(V(35.8, -35.8, 0), V(0, 0, 1), 2.8), False)
sketch24.addGeometry(Part.Circle(V(35.8, 35.8, 0), V(0, 0, 1), 2.8), False)
sketch24.addGeometry(Part.Circle(V(-35.8, 35.8, 0), V(0, 0, 1), 2.8), False)
sketch24.addConstraint(Sketcher.Constraint("Equal", 0, 1))
sketch24.addConstraint(Sketcher.Constraint("Equal", 1, 2))
sketch24.addConstraint(Sketcher.Constraint("Equal", 2, 3))
sketch24.addConstraint(Sketcher.Constraint("Symmetric", 0, 3, 2, 3, -1, 1))
sketch24.addConstraint(Sketcher.Constraint("Symmetric", 1, 3, 3, 3, -1, 1))
sketch24.addConstraint(Sketcher.Constraint("Symmetric", 0, 3, 1, 3, -2))
sketch24.addConstraint(Sketcher.Constraint("Diameter", 0, 5.5))
sketch24.addConstraint(Sketcher.Constraint("DistanceX", 0, 3, 1, 3, 71.5))
sketch24.addConstraint(Sketcher.Constraint("DistanceY", 1, 3, 2, 3, 71.5))
pocket16 = body7.newObject("PartDesign::Pocket", "Pocket015")
pocket16.Profile = sketch24
pocket16.Length = 5
pocket16.Reversed = True
doc.recompute()

chamfer4 = body7.newObject("PartDesign::Chamfer", "Chamfer003")
chamfer4.Base = (pocket16, edges_at(pocket16, [
    (33, 35.75, 0),
    (33, -35.75, 0),
    (-38.5, -35.75, 0),
    (-38.5, 35.75, 0),
]))
chamfer4.Size = 0.5
doc.recompute()

boolean4 = body7.newObject("PartDesign::Boolean", "Boolean003")
boolean4.Type = "Fuse"
boolean4.addObjects([body2])
doc.recompute()

boolean5 = body7.newObject("PartDesign::Boolean", "Boolean004")
boolean5.Type = "Fuse"
boolean5.addObjects([body4])
doc.recompute()

boolean6 = body7.newObject("PartDesign::Boolean", "Boolean005")
boolean6.Type = "Fuse"
boolean6.addObjects([body6])

# Sketch on XY plane
sketch25 = body7.newObject("Sketcher::SketchObject", "Sketch024")
sketch25.AttachmentSupport = (doc.getObject("XY_Plane006"), [""])
sketch25.MapMode = "FlatFace"
sketch25.AttachmentOffset = App.Placement(V(0, 0, 3), App.Rotation())
add_polygon(sketch25, [(-44.8, -16), (-44.8, -24), (-41.8, -24), (-41.8, -16)])  # lines 0-3
add_polygon(sketch25, [(139.8, -16), (139.8, -24), (142.8, -24), (142.8, -16)])  # lines 4-7
add_polygon(sketch25, [(139.8, 53), (139.8, 45), (142.8, 45), (142.8, 53)])  # lines 8-11
add_polygon(sketch25, [(-44.8, 53), (-44.8, 45), (-41.8, 45), (-41.8, 53)])  # lines 12-15
add_polygon(sketch25, [(-44.8, 122), (-44.8, 114), (-41.8, 114), (-41.8, 122)])  # lines 16-19
add_polygon(sketch25, [(139.8, 122), (139.8, 114), (142.8, 114), (142.8, 122)])  # lines 20-23
sketch25.addConstraint(Sketcher.Constraint("Vertical", 0))
sketch25.addConstraint(Sketcher.Constraint("Horizontal", 1))
sketch25.addConstraint(Sketcher.Constraint("Vertical", 2))
sketch25.addConstraint(Sketcher.Constraint("Horizontal", 3))
sketch25.addConstraint(Sketcher.Constraint("Vertical", 4))
sketch25.addConstraint(Sketcher.Constraint("Horizontal", 5))
sketch25.addConstraint(Sketcher.Constraint("Vertical", 6))
sketch25.addConstraint(Sketcher.Constraint("Horizontal", 7))
sketch25.addConstraint(Sketcher.Constraint("Vertical", 8))
sketch25.addConstraint(Sketcher.Constraint("Horizontal", 9))
sketch25.addConstraint(Sketcher.Constraint("Vertical", 10))
sketch25.addConstraint(Sketcher.Constraint("Horizontal", 11))
sketch25.addConstraint(Sketcher.Constraint("Vertical", 12))
sketch25.addConstraint(Sketcher.Constraint("Horizontal", 13))
sketch25.addConstraint(Sketcher.Constraint("Vertical", 14))
sketch25.addConstraint(Sketcher.Constraint("Horizontal", 15))
sketch25.addConstraint(Sketcher.Constraint("Vertical", 16))
sketch25.addConstraint(Sketcher.Constraint("Horizontal", 17))
sketch25.addConstraint(Sketcher.Constraint("Vertical", 18))
sketch25.addConstraint(Sketcher.Constraint("Horizontal", 19))
sketch25.addConstraint(Sketcher.Constraint("Vertical", 20))
sketch25.addConstraint(Sketcher.Constraint("Horizontal", 21))
sketch25.addConstraint(Sketcher.Constraint("Vertical", 22))
sketch25.addConstraint(Sketcher.Constraint("Horizontal", 23))
sketch25.addConstraint(Sketcher.Constraint("Horizontal", 1, 2, 4, 2))
sketch25.addConstraint(Sketcher.Constraint("Horizontal", 3, 2, 6, 2))
sketch25.addConstraint(Sketcher.Constraint("Horizontal", 9, 2, 12, 2))
sketch25.addConstraint(Sketcher.Constraint("Horizontal", 11, 2, 14, 2))
sketch25.addConstraint(Sketcher.Constraint("Horizontal", 17, 2, 20, 2))
sketch25.addConstraint(Sketcher.Constraint("Horizontal", 19, 2, 22, 2))
sketch25.addConstraint(Sketcher.Constraint("Vertical", 7, 2, 8, 2))
sketch25.addConstraint(Sketcher.Constraint("Vertical", 6, 2, 9, 2))
sketch25.addConstraint(Sketcher.Constraint("Vertical", 3, 2, 12, 2))
sketch25.addConstraint(Sketcher.Constraint("Vertical", 2, 2, 13, 2))
sketch25.addConstraint(Sketcher.Constraint("Vertical", 15, 2, 16, 2))
sketch25.addConstraint(Sketcher.Constraint("Vertical", 14, 2, 17, 2))
sketch25.addConstraint(Sketcher.Constraint("Vertical", 11, 2, 20, 2))
sketch25.addConstraint(Sketcher.Constraint("Vertical", 10, 2, 21, 2))
sketch25.addConstraint(Sketcher.Constraint("Equal", 3, 5))
sketch25.addConstraint(Sketcher.Constraint("Equal", 6, 8))
sketch25.addConstraint(Sketcher.Constraint("Equal", 14, 16))
sketch25.addConstraint(Sketcher.Constraint("DistanceX", 1, 1, 1, 2, 3.0))
sketch25.addConstraint(Sketcher.Constraint("DistanceY", 0, 2, 0, 1, 8.0))
sketch25.addConstraint(Sketcher.Constraint("DistanceY", 0, 2, -1, 1, 24.0))
sketch25.addConstraint(Sketcher.Constraint("DistanceY", -1, 1, 8, 2, 45.0))
sketch25.addConstraint(Sketcher.Constraint("DistanceY", -1, 1, 16, 2, 114.0))
sketch25.addConstraint(Sketcher.Constraint("DistanceX", 1, 2, 4, 2, 181.5))
sketch25.addConstraint(Sketcher.Constraint("DistanceX", 0, 2, -1, 1, 44.75))
pocket17 = body7.newObject("PartDesign::Pocket", "Pocket016")
pocket17.Profile = sketch25
pocket17.Length = 5

# Sketch on XZ plane
sketch26 = body7.newObject("Sketcher::SketchObject", "Sketch025")
sketch26.AttachmentSupport = (doc.getObject("XZ_Plane006"), [""])
sketch26.MapMode = "FlatFace"
sketch26.AttachmentOffset = App.Placement(V(0, 0, -41.75), App.Rotation())
add_polygon(sketch26, [(66, 10), (66, 3), (56, 3), (56, 10)])  # lines 0-3
add_polygon(sketch26, [(42, 10), (42, 3), (32, 3), (32, 10)])  # lines 4-7
sketch26.addConstraint(Sketcher.Constraint("Vertical", 0))
sketch26.addConstraint(Sketcher.Constraint("Horizontal", 1))
sketch26.addConstraint(Sketcher.Constraint("Vertical", 2))
sketch26.addConstraint(Sketcher.Constraint("Horizontal", 3))
sketch26.addConstraint(Sketcher.Constraint("Vertical", 4))
sketch26.addConstraint(Sketcher.Constraint("Horizontal", 5))
sketch26.addConstraint(Sketcher.Constraint("Vertical", 6))
sketch26.addConstraint(Sketcher.Constraint("Horizontal", 7))
sketch26.addConstraint(Sketcher.Constraint("Horizontal", 1, 2, 4, 2))
sketch26.addConstraint(Sketcher.Constraint("Horizontal", 3, 2, 6, 2))
sketch26.addConstraint(Sketcher.Constraint("Equal", 3, 5))
sketch26.addConstraint(Sketcher.Constraint("DistanceX", 1, 2, 1, 1, 10.0))
sketch26.addConstraint(Sketcher.Constraint("DistanceY", 0, 2, 0, 1, 7.0))
sketch26.addConstraint(Sketcher.Constraint("DistanceY", -1, 1, 0, 2, 3.0))
sketch26.addConstraint(Sketcher.Constraint("DistanceX", 4, 2, 1, 2, 14.5))
sketch26.addConstraint(Sketcher.Constraint("DistanceX", -1, 1, 0, 2, 66.25))
pad9 = body7.newObject("PartDesign::Pad", "Pad008")
pad9.Profile = sketch26
pad9.Length = 14.5
pad9.Reversed = True

# Sketch on XZ plane
sketch27 = body7.newObject("Sketcher::SketchObject", "Sketch026")
sketch27.AttachmentSupport = (doc.getObject("XZ_Plane006"), [""])
sketch27.MapMode = "FlatFace"
sketch27.AttachmentOffset = App.Placement(V(0, 0, 41.75), App.Rotation())
add_polygon(sketch27, [(32, 10), (32, 3), (42, 3), (42, 10)])  # lines 0-3
add_polygon(sketch27, [(56, 10), (56, 3), (66, 3), (66, 10)])  # lines 4-7
sketch27.addConstraint(Sketcher.Constraint("Vertical", 0))
sketch27.addConstraint(Sketcher.Constraint("Horizontal", 1))
sketch27.addConstraint(Sketcher.Constraint("Vertical", 2))
sketch27.addConstraint(Sketcher.Constraint("Horizontal", 3))
sketch27.addConstraint(Sketcher.Constraint("Vertical", 4))
sketch27.addConstraint(Sketcher.Constraint("Horizontal", 5))
sketch27.addConstraint(Sketcher.Constraint("Vertical", 6))
sketch27.addConstraint(Sketcher.Constraint("Horizontal", 7))
sketch27.addConstraint(Sketcher.Constraint("Horizontal", 1, 2, 4, 2))
sketch27.addConstraint(Sketcher.Constraint("Horizontal", 3, 2, 6, 2))
sketch27.addConstraint(Sketcher.Constraint("Equal", 3, 5))
sketch27.addConstraint(Sketcher.Constraint("DistanceX", 1, 1, 1, 2, 10.0))
sketch27.addConstraint(Sketcher.Constraint("DistanceY", 0, 2, 0, 1, 7.0))
sketch27.addConstraint(Sketcher.Constraint("DistanceY", -1, 1, 0, 2, 3.0))
sketch27.addConstraint(Sketcher.Constraint("DistanceX", 1, 2, 4, 2, 14.5))
sketch27.addConstraint(Sketcher.Constraint("DistanceX", -1, 1, 0, 2, 31.75))
pad10 = body7.newObject("PartDesign::Pad", "Pad009")
pad10.Profile = sketch27
pad10.Length = 7.25

# Sketch on XZ plane
sketch28 = body7.newObject("Sketcher::SketchObject", "Sketch027")
sketch28.AttachmentSupport = (doc.getObject("XZ_Plane006"), [""])
sketch28.MapMode = "FlatFace"
sketch28.AttachmentOffset = App.Placement(V(0, 0, -139.75), App.Rotation())
add_polygon(sketch28, [(66, 10), (66, 3), (56, 3), (56, 10)])  # lines 0-3
add_polygon(sketch28, [(42, 10), (42, 3), (32, 3), (32, 10)])  # lines 4-7
sketch28.addConstraint(Sketcher.Constraint("Vertical", 0))
sketch28.addConstraint(Sketcher.Constraint("Horizontal", 1))
sketch28.addConstraint(Sketcher.Constraint("Vertical", 2))
sketch28.addConstraint(Sketcher.Constraint("Horizontal", 3))
sketch28.addConstraint(Sketcher.Constraint("Vertical", 4))
sketch28.addConstraint(Sketcher.Constraint("Horizontal", 5))
sketch28.addConstraint(Sketcher.Constraint("Vertical", 6))
sketch28.addConstraint(Sketcher.Constraint("Horizontal", 7))
sketch28.addConstraint(Sketcher.Constraint("Horizontal", 1, 2, 4, 2))
sketch28.addConstraint(Sketcher.Constraint("Horizontal", 3, 2, 6, 2))
sketch28.addConstraint(Sketcher.Constraint("Equal", 3, 5))
sketch28.addConstraint(Sketcher.Constraint("DistanceX", 1, 2, 1, 1, 10.0))
sketch28.addConstraint(Sketcher.Constraint("DistanceY", 0, 2, 0, 1, 7.0))
sketch28.addConstraint(Sketcher.Constraint("DistanceY", -1, 1, 0, 2, 3.0))
sketch28.addConstraint(Sketcher.Constraint("DistanceX", 4, 2, 1, 2, 14.5))
sketch28.addConstraint(Sketcher.Constraint("DistanceX", -1, 1, 0, 2, 66.25))
pad11 = body7.newObject("PartDesign::Pad", "Pad010")
pad11.Profile = sketch28
pad11.Length = 7.25
pad11.Reversed = True

# Sketch on XY plane
sketch29 = body7.newObject("Sketcher::SketchObject", "Sketch028")
sketch29.AttachmentSupport = (doc.getObject("XY_Plane006"), [""])
sketch29.MapMode = "FlatFace"
sketch29.AttachmentOffset = App.Placement(V(0, 0, 10), App.Rotation())
sketch29.addGeometry(Part.Circle(V(37.8, -45, 0), V(0, 0, 1), 1.9), False)
sketch29.addGeometry(Part.Circle(V(60.2, -45, 0), V(0, 0, 1), 1.9), False)
sketch29.addGeometry(Part.Circle(V(37.8, 143, 0), V(0, 0, 1), 1.9), False)
sketch29.addGeometry(Part.Circle(V(60.2, 143, 0), V(0, 0, 1), 1.9), False)
sketch29.addGeometry(Part.Circle(V(37.8, 49, 0), V(0, 0, 1), 1.9), False)
sketch29.addGeometry(Part.Circle(V(60.2, 49, 0), V(0, 0, 1), 1.9), False)
sketch29.addConstraint(Sketcher.Constraint("Equal", 0, 1))
sketch29.addConstraint(Sketcher.Constraint("Equal", 1, 2))
sketch29.addConstraint(Sketcher.Constraint("Equal", 2, 3))
sketch29.addConstraint(Sketcher.Constraint("Equal", 3, 4))
sketch29.addConstraint(Sketcher.Constraint("Equal", 4, 5))
sketch29.addConstraint(Sketcher.Constraint("Horizontal", 0, 3, 1, 3))
sketch29.addConstraint(Sketcher.Constraint("Horizontal", 2, 3, 3, 3))
sketch29.addConstraint(Sketcher.Constraint("Horizontal", 4, 3, 5, 3))
sketch29.addConstraint(Sketcher.Constraint("Vertical", 0, 3, 2, 3))
sketch29.addConstraint(Sketcher.Constraint("Vertical", 1, 3, 3, 3))
sketch29.addConstraint(Sketcher.Constraint("Vertical", 2, 3, 4, 3))
sketch29.addConstraint(Sketcher.Constraint("Vertical", 3, 3, 5, 3))
sketch29.addConstraint(Sketcher.Constraint("Diameter", 0, 3.7))
sketch29.addConstraint(Sketcher.Constraint("DistanceY", 0, 3, -1, 1, 45.0))
sketch29.addConstraint(Sketcher.Constraint("DistanceY", -1, 1, 2, 3, 143.0))
sketch29.addConstraint(Sketcher.Constraint("DistanceY", -1, 1, 4, 3, 49.0))
sketch29.addConstraint(Sketcher.Constraint("DistanceX", 0, 3, 1, 3, 22.5))
sketch29.addConstraint(Sketcher.Constraint("DistanceX", -1, 1, 0, 3, 37.75))
pocket18 = body7.newObject("PartDesign::Pocket", "Pocket017")
pocket18.Profile = sketch29
pocket18.Length = 10

# Sketch on XY plane
sketch30 = body7.newObject("Sketcher::SketchObject", "Sketch029")
sketch30.AttachmentSupport = (doc.getObject("XY_Plane006"), [""])
sketch30.MapMode = "FlatFace"
sketch30.addGeometry(Part.Circle(V(37.8, -45, 0), V(0, 0, 1), 2.8), False)
sketch30.addGeometry(Part.Circle(V(60.2, -45, 0), V(0, 0, 1), 2.8), False)
sketch30.addGeometry(Part.Circle(V(37.8, 49, 0), V(0, 0, 1), 2.8), False)
sketch30.addGeometry(Part.Circle(V(60.2, 49, 0), V(0, 0, 1), 2.8), False)
sketch30.addGeometry(Part.Circle(V(37.8, 143, 0), V(0, 0, 1), 2.8), False)
sketch30.addGeometry(Part.Circle(V(60.2, 143, 0), V(0, 0, 1), 2.8), False)
sketch30.addConstraint(Sketcher.Constraint("Equal", 0, 1))
sketch30.addConstraint(Sketcher.Constraint("Equal", 1, 2))
sketch30.addConstraint(Sketcher.Constraint("Equal", 2, 3))
sketch30.addConstraint(Sketcher.Constraint("Equal", 3, 4))
sketch30.addConstraint(Sketcher.Constraint("Equal", 4, 5))
sketch30.addConstraint(Sketcher.Constraint("Horizontal", 0, 3, 1, 3))
sketch30.addConstraint(Sketcher.Constraint("Horizontal", 2, 3, 3, 3))
sketch30.addConstraint(Sketcher.Constraint("Horizontal", 4, 3, 5, 3))
sketch30.addConstraint(Sketcher.Constraint("Vertical", 0, 3, 2, 3))
sketch30.addConstraint(Sketcher.Constraint("Vertical", 1, 3, 3, 3))
sketch30.addConstraint(Sketcher.Constraint("Vertical", 2, 3, 4, 3))
sketch30.addConstraint(Sketcher.Constraint("Vertical", 3, 3, 5, 3))
sketch30.addConstraint(Sketcher.Constraint("Diameter", 0, 5.5))
sketch30.addConstraint(Sketcher.Constraint("DistanceY", 0, 3, -1, 1, 45.0))
sketch30.addConstraint(Sketcher.Constraint("DistanceY", -1, 1, 2, 3, 49.0))
sketch30.addConstraint(Sketcher.Constraint("DistanceY", -1, 1, 4, 3, 143.0))
sketch30.addConstraint(Sketcher.Constraint("DistanceX", 0, 3, 1, 3, 22.5))
sketch30.addConstraint(Sketcher.Constraint("DistanceX", -1, 1, 0, 3, 37.75))
pocket19 = body7.newObject("PartDesign::Pocket", "Pocket018")
pocket19.Profile = sketch30
pocket19.Length = 5
pocket19.Reversed = True
doc.recompute()

chamfer5 = body7.newObject("PartDesign::Chamfer", "Chamfer004")
chamfer5.Base = (pocket19, edges_at(pocket19, [
    (35, -45, 0),
    (57.5, -45, 0),
    (35, 49, 0),
    (57.5, 49, 0),
    (35, 143, 0),
    (57.5, 143, 0),
]))
chamfer5.Size = 0.5
doc.recompute()

chamfer6 = body7.newObject("PartDesign::Chamfer", "Chamfer005")
chamfer6.Base = (chamfer5, edges_at(chamfer5, [
    (-37.6, 133.75, 5),
    (33.9, 133.75, 5),
    (35.9, 143, 5),
    (58.4, 143, 5),
    (60.4, 133.75, 5),
    (131.9, 133.75, 5),
    (131.9, 62.25, 5),
    (60.4, 62.25, 5),
    (33.9, 62.25, 5),
    (131.9, 35.75, 5),
    (60.4, 35.75, 5),
    (58.4, 49, 5),
    (-37.6, 62.25, 5),
    (35.9, 49, 5),
    (33.9, 35.75, 5),
    (-37.6, 35.75, 5),
    (-37.6, -35.75, 5),
    (33.9, -35.75, 5),
    (60.4, -35.75, 5),
    (35.9, -45, 5),
    (131.9, -35.75, 5),
    (58.4, -45, 5),
]))
chamfer6.Size = 0.8

doc.recompute()
